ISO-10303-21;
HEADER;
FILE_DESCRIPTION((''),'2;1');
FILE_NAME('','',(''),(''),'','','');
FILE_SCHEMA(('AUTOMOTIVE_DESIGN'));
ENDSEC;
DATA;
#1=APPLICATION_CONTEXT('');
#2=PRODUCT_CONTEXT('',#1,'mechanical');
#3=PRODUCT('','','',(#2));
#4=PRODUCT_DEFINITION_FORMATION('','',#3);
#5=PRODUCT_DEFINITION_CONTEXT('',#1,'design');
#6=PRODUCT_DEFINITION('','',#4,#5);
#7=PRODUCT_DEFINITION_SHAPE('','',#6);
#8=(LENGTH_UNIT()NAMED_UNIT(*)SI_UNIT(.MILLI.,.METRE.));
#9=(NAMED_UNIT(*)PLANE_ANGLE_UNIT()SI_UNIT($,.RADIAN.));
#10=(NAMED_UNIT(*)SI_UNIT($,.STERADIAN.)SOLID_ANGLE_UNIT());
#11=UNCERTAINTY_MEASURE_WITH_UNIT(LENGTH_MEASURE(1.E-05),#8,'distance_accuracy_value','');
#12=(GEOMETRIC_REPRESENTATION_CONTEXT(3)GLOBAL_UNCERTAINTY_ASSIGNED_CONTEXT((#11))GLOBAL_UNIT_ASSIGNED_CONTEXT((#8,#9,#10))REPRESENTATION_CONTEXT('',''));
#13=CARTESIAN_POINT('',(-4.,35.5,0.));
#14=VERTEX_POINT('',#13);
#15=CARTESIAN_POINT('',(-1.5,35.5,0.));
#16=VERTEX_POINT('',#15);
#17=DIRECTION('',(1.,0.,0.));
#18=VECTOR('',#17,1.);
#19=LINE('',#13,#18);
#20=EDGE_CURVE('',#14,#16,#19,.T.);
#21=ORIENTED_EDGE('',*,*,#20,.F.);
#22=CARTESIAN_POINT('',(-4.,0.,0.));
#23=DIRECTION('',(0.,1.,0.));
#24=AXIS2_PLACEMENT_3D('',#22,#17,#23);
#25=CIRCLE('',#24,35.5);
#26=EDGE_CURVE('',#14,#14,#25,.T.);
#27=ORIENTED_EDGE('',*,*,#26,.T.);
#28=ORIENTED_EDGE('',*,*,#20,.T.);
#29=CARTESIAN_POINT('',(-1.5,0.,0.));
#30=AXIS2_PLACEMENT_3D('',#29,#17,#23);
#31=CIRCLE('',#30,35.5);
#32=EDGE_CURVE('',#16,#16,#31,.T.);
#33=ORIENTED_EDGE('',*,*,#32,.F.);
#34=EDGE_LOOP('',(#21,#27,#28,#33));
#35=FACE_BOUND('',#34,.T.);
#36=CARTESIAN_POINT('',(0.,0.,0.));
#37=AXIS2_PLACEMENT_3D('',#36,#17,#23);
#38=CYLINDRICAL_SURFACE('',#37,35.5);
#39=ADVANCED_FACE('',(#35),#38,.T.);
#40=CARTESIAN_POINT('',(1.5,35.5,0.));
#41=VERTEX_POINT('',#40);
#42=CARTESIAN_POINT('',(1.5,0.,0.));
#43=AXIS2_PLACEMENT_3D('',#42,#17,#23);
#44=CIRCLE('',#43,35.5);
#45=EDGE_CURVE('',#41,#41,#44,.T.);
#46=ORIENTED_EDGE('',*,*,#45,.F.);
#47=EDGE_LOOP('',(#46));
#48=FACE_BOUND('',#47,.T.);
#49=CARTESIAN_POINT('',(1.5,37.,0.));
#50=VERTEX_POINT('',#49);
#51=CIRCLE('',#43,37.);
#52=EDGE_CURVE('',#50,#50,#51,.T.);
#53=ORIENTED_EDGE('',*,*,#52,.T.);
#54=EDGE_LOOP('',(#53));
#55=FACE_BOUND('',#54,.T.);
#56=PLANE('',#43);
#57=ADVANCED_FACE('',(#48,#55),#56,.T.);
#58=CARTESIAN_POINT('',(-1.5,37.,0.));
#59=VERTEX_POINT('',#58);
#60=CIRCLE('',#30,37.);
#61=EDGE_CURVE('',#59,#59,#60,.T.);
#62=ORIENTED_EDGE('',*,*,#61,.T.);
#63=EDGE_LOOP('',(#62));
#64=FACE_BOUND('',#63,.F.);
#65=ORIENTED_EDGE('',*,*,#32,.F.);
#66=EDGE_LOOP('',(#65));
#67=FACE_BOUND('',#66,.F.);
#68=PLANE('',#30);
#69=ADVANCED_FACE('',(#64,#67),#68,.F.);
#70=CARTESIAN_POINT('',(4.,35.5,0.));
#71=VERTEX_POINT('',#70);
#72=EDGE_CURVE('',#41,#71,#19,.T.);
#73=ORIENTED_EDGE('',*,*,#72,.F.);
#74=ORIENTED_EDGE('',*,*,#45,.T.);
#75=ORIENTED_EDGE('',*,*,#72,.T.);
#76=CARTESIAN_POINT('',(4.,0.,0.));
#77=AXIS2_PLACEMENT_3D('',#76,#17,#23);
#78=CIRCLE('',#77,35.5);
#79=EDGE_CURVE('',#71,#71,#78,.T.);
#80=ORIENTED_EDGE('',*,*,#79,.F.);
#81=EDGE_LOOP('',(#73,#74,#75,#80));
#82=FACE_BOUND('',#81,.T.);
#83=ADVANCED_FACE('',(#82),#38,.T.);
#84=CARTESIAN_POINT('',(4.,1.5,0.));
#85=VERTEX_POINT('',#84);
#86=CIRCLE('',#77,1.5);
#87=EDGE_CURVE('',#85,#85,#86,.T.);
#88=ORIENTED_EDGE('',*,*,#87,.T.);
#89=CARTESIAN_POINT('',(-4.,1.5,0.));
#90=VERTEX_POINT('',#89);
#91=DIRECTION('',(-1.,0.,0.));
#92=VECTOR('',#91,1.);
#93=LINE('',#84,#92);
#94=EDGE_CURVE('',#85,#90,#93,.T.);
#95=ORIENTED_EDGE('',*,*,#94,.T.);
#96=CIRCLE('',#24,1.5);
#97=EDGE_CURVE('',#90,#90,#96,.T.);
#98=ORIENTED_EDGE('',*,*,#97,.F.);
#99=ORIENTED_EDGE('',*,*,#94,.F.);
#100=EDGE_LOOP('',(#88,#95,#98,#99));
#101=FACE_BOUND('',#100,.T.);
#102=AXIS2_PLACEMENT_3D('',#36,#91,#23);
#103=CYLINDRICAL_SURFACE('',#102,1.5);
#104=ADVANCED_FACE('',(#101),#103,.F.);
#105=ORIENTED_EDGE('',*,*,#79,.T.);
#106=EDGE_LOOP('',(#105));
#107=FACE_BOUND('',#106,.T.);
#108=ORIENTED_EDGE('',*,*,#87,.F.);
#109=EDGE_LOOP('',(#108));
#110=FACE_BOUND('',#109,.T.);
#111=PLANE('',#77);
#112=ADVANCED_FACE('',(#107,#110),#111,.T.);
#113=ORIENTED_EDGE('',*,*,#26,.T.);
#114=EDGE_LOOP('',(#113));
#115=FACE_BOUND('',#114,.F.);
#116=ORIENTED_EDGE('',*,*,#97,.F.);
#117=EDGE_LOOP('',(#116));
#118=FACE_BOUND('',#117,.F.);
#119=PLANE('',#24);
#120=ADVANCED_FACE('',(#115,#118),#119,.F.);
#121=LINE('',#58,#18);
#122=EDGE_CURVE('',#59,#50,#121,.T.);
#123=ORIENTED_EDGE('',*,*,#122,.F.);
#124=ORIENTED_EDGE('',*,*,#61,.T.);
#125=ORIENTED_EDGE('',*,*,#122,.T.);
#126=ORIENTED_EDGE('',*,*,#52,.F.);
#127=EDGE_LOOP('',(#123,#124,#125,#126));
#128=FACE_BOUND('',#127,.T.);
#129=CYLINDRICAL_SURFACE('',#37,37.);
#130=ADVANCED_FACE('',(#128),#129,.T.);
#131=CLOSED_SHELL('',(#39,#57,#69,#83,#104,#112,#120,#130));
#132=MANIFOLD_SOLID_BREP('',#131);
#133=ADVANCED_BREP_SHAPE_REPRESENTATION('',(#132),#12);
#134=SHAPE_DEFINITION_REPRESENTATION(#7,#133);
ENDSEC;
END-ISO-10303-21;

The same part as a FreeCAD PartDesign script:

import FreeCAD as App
import Part
import Sketcher

doc = App.newDocument("Part")
body = doc.addObject("PartDesign::Body", "Body")

sketch1 = body.newObject("Sketcher::SketchObject", "Sketch")
sketch1.AttachmentSupport = (doc.getObject("YZ_Plane"), [""])
sketch1.MapMode = "FlatFace"
sketch1.addGeometry(Part.Circle(App.Vector(0, 0, 0), App.Vector(0, 0, 1), 37), False)
sketch1.addGeometry(Part.Circle(App.Vector(0, 0, 0), App.Vector(0, 0, 1), 36), False)
sketch1.addConstraint(Sketcher.Constraint("Coincident", 0, 3, -1, 1))
sketch1.addConstraint(Sketcher.Constraint("Coincident", 1, 3, -1, 1))
sketch1.addConstraint(Sketcher.Constraint("Diameter", 0, 74.0))
sketch1.addConstraint(Sketcher.Constraint("Diameter", 1, 71.0))
pad1 = body.newObject("PartDesign::Pad", "Pad")
pad1.Profile = sketch1
pad1.Length = 3
pad1.Midplane = True

sketch2 = body.newObject("Sketcher::SketchObject", "Sketch001")
sketch2.AttachmentSupport = (doc.getObject("YZ_Plane"), [""])
sketch2.MapMode = "FlatFace"
sketch2.addGeometry(Part.Circle(App.Vector(0, 0, 0), App.Vector(0, 0, 1), 35.5), False)
sketch2.addGeometry(Part.Circle(App.Vector(0, 0, 0), App.Vector(0, 0, 1), 1.5), False)
sketch2.addConstraint(Sketcher.Constraint("Coincident", 0, 3, -1, 1))
sketch2.addConstraint(Sketcher.Constraint("Coincident", 1, 3, -1, 1))
sketch2.addConstraint(Sketcher.Constraint("Diameter", 0, 71.0))
sketch2.addConstraint(Sketcher.Constraint("Diameter", 1, 3.0))
pad2 = body.newObject("PartDesign::Pad", "Pad001")
pad2.Profile = sketch2
pad2.Length = 8
pad2.Midplane = True

doc.recompute()
